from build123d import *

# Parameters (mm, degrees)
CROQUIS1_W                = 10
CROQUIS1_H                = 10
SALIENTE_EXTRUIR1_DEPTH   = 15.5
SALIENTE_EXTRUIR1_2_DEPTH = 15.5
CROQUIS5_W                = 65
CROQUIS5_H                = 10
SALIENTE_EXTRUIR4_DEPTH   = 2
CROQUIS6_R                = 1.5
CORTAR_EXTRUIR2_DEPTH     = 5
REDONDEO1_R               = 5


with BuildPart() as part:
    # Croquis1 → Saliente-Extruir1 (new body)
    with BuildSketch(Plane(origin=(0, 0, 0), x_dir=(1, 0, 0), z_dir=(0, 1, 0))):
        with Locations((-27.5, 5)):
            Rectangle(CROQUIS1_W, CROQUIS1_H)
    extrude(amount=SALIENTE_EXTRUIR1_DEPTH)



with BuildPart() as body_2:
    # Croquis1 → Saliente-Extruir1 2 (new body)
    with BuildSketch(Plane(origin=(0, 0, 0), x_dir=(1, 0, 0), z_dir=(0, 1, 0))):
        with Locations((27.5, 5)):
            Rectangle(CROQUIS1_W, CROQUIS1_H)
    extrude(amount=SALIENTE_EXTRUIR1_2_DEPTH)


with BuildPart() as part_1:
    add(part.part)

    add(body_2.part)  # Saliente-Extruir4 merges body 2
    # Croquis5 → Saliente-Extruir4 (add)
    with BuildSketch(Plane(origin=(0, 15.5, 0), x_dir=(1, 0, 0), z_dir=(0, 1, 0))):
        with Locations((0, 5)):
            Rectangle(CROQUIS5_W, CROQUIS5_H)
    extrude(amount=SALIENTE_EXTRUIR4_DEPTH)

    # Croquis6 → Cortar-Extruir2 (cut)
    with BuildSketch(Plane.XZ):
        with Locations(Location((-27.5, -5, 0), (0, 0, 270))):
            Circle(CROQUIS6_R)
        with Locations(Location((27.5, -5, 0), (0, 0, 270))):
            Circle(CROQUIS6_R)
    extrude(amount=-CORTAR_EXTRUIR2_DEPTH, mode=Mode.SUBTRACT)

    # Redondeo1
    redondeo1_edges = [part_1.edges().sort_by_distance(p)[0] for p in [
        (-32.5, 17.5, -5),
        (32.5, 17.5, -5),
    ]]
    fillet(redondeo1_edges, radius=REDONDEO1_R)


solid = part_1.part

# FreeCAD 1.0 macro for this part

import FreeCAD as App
import Part
import Sketcher

V = App.Vector


def edges_at(feature, points):
    """Names of the edges that pass closest to the given points."""
    edges = feature.Shape.Edges
    near = lambda p: min(range(len(edges)), key=lambda i: edges[i].distToShape(Part.Vertex(*p))[0])
    return sorted({f"Edge{near(p) + 1}" for p in points})

doc = App.newDocument("Part")
body = doc.addObject("PartDesign::Body", "Body")

# Sketch on XZ plane
sketch1 = body.newObject("Sketcher::SketchObject", "Sketch")
sketch1.AttachmentSupport = (doc.getObject("XZ_Plane"), [""])
sketch1.MapMode = "FlatFace"
sketch1.addGeometry([
    Part.LineSegment(V(-32.5, -10, 0), V(-32.5, 0, 0)),
    Part.LineSegment(V(-32.5, 0, 0), V(-22.5, 0, 0)),
    Part.LineSegment(V(-22.5, 0, 0), V(-22.5, -10, 0)),
    Part.LineSegment(V(-22.5, -10, 0), V(-32.5, -10, 0)),
], False)
sketch1.addConstraint([
    Sketcher.Constraint("Coincident", 0, 2, 1, 1),
    Sketcher.Constraint("Coincident", 1, 2, 2, 1),
    Sketcher.Constraint("Coincident", 2, 2, 3, 1),
    Sketcher.Constraint("Coincident", 3, 2, 0, 1),
    Sketcher.Constraint("Vertical", 0),
    Sketcher.Constraint("Horizontal", 1),
    Sketcher.Constraint("Vertical", 2),
    Sketcher.Constraint("Horizontal", 3),
    Sketcher.Constraint("PointOnObject", 0, 2, -1),
    Sketcher.Constraint("Equal", 3, 0),
    Sketcher.Constraint("DistanceX", 1, 1, 1, 2, 10.0),
    Sketcher.Constraint("DistanceX", 0, 2, -1, 1, 32.5),
])
pad1 = body.newObject("PartDesign::Pad", "Pad")
pad1.Profile = sketch1
pad1.Length = 15.5
pad1.Reversed = True
body2 = doc.addObject("PartDesign::Body", "Body001")

# Sketch on XZ plane
sketch2 = body2.newObject("Sketcher::SketchObject", "Sketch001")
sketch2.AttachmentSupport = (doc.getObject("XZ_Plane001"), [""])
sketch2.MapMode = "FlatFace"
sketch2.addGeometry([
    Part.LineSegment(V(22.5, -10, 0), V(22.5, 0, 0)),
    Part.LineSegment(V(22.5, 0, 0), V(32.5, 0, 0)),
    Part.LineSegment(V(32.5, 0, 0), V(32.5, -10, 0)),
    Part.LineSegment(V(32.5, -10, 0), V(22.5, -10, 0)),
], False)
sketch2.addConstraint([
    Sketcher.Constraint("Coincident", 0, 2, 1, 1),
    Sketcher.Constraint("Coincident", 1, 2, 2, 1),
    Sketcher.Constraint("Coincident", 2, 2, 3, 1),
    Sketcher.Constraint("Coincident", 3, 2, 0, 1),
    Sketcher.Constraint("Vertical", 0),
    Sketcher.Constraint("Horizontal", 1),
    Sketcher.Constraint("Vertical", 2),
    Sketcher.Constraint("Horizontal", 3),
    Sketcher.Constraint("PointOnObject", 0, 2, -1),
    Sketcher.Constraint("Equal", 3, 0),
    Sketcher.Constraint("DistanceX", 1, 1, 1, 2, 10.0),
    Sketcher.Constraint("DistanceX", -1, 1, 0, 2, 22.5),
])
pad2 = body2.newObject("PartDesign::Pad", "Pad001")
pad2.Profile = sketch2
pad2.Length = 15.5
pad2.Reversed = True
body.AllowCompound = True
doc.recompute()

boolean = body.newObject("PartDesign::Boolean", "Boolean")
boolean.Type = "Fuse"
boolean.addObjects([body2])

# Sketch on XZ plane
sketch3 = body.newObject("Sketcher::SketchObject", "Sketch002")
sketch3.AttachmentSupport = (doc.getObject("XZ_Plane"), [""])
sketch3.MapMode = "FlatFace"
sketch3.AttachmentOffset = App.Placement(V(0, 0, -15.5), App.Rotation())
sketch3.addGeometry([
    Part.LineSegment(V(-32.5, -10, 0), V(-32.5, 0, 0)),
    Part.LineSegment(V(-32.5, 0, 0), V(32.5, 0, 0)),
    Part.LineSegment(V(32.5, 0, 0), V(32.5, -10, 0)),
    Part.LineSegment(V(32.5, -10, 0), V(-32.5, -10, 0)),
], False)
sketch3.addConstraint([
    Sketcher.Constraint("Coincident", 0, 2, 1, 1),
    Sketcher.Constraint("Coincident", 1, 2, 2, 1),
    Sketcher.Constraint("Coincident", 2, 2, 3, 1),
    Sketcher.Constraint("Coincident", 3, 2, 0, 1),
    Sketcher.Constraint("Vertical", 0),
    Sketcher.Constraint("Horizontal", 1),
    Sketcher.Constraint("Vertical", 2),
    Sketcher.Constraint("Horizontal", 3),
    Sketcher.Constraint("Symmetric", 0, 2, 1, 2, -1, 1),
    Sketcher.Constraint("DistanceX", 1, 1, 1, 2, 65.0),
    Sketcher.Constraint("DistanceY", 0, 1, 0, 2, 10.0),
])
pad3 = body.newObject("PartDesign::Pad", "Pad002")
pad3.Profile = sketch3
pad3.Length = 2
pad3.Reversed = True

# Sketch on XZ plane
sketch4 = body.newObject("Sketcher::SketchObject", "Sketch003")
sketch4.AttachmentSupport = (doc.getObject("XZ_Plane"), [""])
sketch4.MapMode = "FlatFace"
sketch4.addGeometry([
    Part.Circle(V(-27.5, -5, 0), V(0, 0, 1), 1.5),
    Part.Circle(V(27.5, -5, 0), V(0, 0, 1), 1.5),
], False)
sketch4.addConstraint([
    Sketcher.Constraint("Equal", 0, 1),
    Sketcher.Constraint("Symmetric", 0, 3, 1, 3, -2),
    Sketcher.Constraint("Diameter", 0, 3.0),
    Sketcher.Constraint("DistanceY", 0, 3, -1, 1, 5.0),
    Sketcher.Constraint("DistanceX", 0, 3, 1, 3, 55.0),
])
pocket1 = body.newObject("PartDesign::Pocket", "Pocket")
pocket1.Profile = sketch4
pocket1.Length = 5
doc.recompute()

fillet = body.newObject("PartDesign::Fillet", "Fillet")
fillet.Base = (pocket1, edges_at(pocket1, [(-32.5, 17.5, -5), (32.5, 17.5, -5)]))
fillet.Radius = 5

doc.recompute()
